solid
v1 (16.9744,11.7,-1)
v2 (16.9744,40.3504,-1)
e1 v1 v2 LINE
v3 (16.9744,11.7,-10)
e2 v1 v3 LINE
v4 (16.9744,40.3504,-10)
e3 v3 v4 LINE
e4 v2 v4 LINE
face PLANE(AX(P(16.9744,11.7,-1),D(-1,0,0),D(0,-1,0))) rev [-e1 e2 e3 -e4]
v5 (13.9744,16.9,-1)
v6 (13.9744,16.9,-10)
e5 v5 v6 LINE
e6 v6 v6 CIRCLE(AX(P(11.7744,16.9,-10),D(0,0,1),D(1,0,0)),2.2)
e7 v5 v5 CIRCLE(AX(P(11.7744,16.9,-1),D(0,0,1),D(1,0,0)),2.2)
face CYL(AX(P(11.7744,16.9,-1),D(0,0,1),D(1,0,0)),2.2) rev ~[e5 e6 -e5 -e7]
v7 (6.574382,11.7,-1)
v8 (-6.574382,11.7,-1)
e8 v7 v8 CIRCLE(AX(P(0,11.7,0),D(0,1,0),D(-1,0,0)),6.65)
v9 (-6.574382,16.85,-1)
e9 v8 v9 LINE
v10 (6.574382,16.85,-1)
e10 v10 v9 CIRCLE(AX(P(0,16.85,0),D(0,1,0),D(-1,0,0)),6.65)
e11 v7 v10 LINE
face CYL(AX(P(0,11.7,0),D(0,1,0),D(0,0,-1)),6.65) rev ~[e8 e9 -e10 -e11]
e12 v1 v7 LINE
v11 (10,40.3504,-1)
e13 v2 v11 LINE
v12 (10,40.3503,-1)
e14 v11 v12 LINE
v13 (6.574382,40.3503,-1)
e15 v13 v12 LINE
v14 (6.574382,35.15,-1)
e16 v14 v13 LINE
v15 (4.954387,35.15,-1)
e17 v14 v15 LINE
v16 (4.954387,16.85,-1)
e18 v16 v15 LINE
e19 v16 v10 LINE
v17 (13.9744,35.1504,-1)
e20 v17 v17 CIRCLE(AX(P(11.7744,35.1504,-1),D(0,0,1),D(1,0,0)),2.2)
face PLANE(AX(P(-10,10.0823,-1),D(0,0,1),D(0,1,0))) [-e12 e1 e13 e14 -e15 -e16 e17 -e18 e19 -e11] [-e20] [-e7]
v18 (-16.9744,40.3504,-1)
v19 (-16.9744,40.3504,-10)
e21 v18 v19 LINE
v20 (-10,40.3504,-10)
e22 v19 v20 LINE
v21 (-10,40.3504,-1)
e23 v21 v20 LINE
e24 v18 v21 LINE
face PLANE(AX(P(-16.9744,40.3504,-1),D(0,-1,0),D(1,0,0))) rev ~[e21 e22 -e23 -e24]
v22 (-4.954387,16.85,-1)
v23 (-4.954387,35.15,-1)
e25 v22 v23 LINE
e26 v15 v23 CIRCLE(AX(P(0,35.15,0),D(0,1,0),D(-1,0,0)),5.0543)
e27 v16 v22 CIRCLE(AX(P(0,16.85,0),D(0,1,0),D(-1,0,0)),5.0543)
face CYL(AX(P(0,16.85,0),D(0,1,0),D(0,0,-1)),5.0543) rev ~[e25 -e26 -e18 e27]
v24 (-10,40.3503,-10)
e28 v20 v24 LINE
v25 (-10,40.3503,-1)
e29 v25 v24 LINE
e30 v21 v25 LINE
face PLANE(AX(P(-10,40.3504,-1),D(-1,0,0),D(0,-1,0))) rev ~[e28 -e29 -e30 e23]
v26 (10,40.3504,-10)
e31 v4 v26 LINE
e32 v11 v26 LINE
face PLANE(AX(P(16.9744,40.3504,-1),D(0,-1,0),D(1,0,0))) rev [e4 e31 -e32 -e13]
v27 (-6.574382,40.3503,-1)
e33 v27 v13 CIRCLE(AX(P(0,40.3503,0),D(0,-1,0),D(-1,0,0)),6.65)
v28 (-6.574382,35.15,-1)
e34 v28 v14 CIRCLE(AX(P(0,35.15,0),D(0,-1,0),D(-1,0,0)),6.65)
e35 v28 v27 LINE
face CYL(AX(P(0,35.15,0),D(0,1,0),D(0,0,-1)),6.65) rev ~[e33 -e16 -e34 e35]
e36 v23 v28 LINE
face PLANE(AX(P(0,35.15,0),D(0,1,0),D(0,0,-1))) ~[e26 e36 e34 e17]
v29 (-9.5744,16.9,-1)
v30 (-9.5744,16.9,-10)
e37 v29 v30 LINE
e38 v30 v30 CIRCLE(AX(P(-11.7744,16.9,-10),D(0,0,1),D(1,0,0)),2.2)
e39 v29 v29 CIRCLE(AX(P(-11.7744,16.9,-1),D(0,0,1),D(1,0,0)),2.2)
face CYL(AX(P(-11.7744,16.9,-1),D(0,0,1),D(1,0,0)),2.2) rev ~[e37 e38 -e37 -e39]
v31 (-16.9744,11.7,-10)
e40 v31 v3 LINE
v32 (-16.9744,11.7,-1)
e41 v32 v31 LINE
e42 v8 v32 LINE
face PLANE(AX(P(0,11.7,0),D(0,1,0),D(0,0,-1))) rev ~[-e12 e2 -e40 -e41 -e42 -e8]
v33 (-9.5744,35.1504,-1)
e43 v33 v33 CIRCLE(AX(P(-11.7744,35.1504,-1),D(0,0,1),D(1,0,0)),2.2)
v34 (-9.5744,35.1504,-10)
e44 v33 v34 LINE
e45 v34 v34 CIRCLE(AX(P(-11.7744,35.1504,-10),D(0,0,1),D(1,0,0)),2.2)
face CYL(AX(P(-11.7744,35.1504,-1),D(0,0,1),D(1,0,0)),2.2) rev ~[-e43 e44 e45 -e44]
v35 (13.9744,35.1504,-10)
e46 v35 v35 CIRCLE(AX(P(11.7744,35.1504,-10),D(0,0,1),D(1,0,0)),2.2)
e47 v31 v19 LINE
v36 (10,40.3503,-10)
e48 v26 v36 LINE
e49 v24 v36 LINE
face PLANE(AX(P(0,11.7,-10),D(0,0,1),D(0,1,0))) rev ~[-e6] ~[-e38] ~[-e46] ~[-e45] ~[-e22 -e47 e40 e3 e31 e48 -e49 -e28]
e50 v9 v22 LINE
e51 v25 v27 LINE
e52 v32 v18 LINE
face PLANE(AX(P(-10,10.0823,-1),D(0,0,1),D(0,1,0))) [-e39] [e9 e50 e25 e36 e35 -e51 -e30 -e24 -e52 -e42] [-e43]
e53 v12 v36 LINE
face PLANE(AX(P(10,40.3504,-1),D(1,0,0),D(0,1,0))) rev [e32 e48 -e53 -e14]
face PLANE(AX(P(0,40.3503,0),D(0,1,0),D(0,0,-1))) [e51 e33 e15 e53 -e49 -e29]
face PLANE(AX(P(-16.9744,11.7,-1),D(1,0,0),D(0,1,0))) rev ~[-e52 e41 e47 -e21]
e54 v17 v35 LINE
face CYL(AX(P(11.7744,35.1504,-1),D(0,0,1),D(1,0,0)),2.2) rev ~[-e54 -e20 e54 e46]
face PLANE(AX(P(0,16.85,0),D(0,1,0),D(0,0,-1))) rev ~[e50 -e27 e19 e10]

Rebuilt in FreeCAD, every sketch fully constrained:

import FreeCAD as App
import Part
import Sketcher

V = App.Vector

doc = App.newDocument("Part")
body = doc.addObject("PartDesign::Body", "Body")

# Sketch on YZ plane
sketch1 = body.newObject("Sketcher::SketchObject", "Sketch")
sketch1.AttachmentSupport = (doc.getObject("YZ_Plane"), [""])
sketch1.MapMode = "FlatFace"
sketch1.addGeometry(Part.LineSegment(V(16.85, -6.65, 0), V(11.7, -6.65, 0)), False)
sketch1.addGeometry(Part.LineSegment(V(11.7, -6.65, 0), V(11.7, -10, 0)), False)
sketch1.addGeometry(Part.LineSegment(V(11.7, -10, 0), V(40.3503, -10, 0)), False)
sketch1.addGeometry(Part.LineSegment(V(40.3503, -10, 0), V(40.3503, -6.65, 0)), False)
sketch1.addGeometry(Part.LineSegment(V(40.3503, -6.65, 0), V(35.15, -6.65, 0)), False)
sketch1.addGeometry(Part.LineSegment(V(35.15, -6.65, 0), V(35.15, -5.0543, 0)), False)
sketch1.addGeometry(Part.LineSegment(V(35.15, -5.0543, 0), V(16.85, -5.0543, 0)), False)
sketch1.addGeometry(Part.LineSegment(V(16.85, -5.0543, 0), V(16.85, -6.65, 0)), False)
sketch1.addConstraint(Sketcher.Constraint("Coincident", 0, 2, 1, 1))
sketch1.addConstraint(Sketcher.Constraint("Coincident", 1, 2, 2, 1))
sketch1.addConstraint(Sketcher.Constraint("Coincident", 2, 2, 3, 1))
sketch1.addConstraint(Sketcher.Constraint("Coincident", 3, 2, 4, 1))
sketch1.addConstraint(Sketcher.Constraint("Coincident", 4, 2, 5, 1))
sketch1.addConstraint(Sketcher.Constraint("Coincident", 5, 2, 6, 1))
sketch1.addConstraint(Sketcher.Constraint("Coincident", 6, 2, 7, 1))
sketch1.addConstraint(Sketcher.Constraint("Coincident", 7, 2, 0, 1))
sketch1.addConstraint(Sketcher.Constraint("Horizontal", 0))
sketch1.addConstraint(Sketcher.Constraint("Vertical", 1))
sketch1.addConstraint(Sketcher.Constraint("Horizontal", 2))
sketch1.addConstraint(Sketcher.Constraint("Vertical", 3))
sketch1.addConstraint(Sketcher.Constraint("Horizontal", 4))
sketch1.addConstraint(Sketcher.Constraint("Vertical", 5))
sketch1.addConstraint(Sketcher.Constraint("Horizontal", 6))
sketch1.addConstraint(Sketcher.Constraint("Vertical", 7))
sketch1.addConstraint(Sketcher.Constraint("Horizontal", 0, 2, 3, 2))
sketch1.addConstraint(Sketcher.Constraint("DistanceX", 6, 2, 6, 1, 18.3))
sketch1.addConstraint(Sketcher.Constraint("DistanceY", 1, 2, -1, 1, 10.0))
sketch1.addConstraint(Sketcher.Constraint("DistanceX", 0, 2, 0, 1, 5.15))
sketch1.addConstraint(Sketcher.Constraint("DistanceY", 1, 2, 1, 1, 3.35))
sketch1.addConstraint(Sketcher.Constraint("DistanceX", -1, 1, 0, 2, 11.7))
sketch1.addConstraint(Sketcher.Constraint("DistanceX", 2, 1, 2, 2, 28.6503))
sketch1.addConstraint(Sketcher.Constraint("DistanceY", 5, 1, 5, 2, 1.5957))
revolution = body.newObject("PartDesign::Revolution", "Revolution")
revolution.Profile = sketch1
revolution.ReferenceAxis = (sketch1, ["H_Axis"])
revolution.Angle = 360

# Sketch on YZ plane
sketch2 = body.newObject("Sketcher::SketchObject", "Sketch001")
sketch2.AttachmentSupport = (doc.getObject("YZ_Plane"), [""])
sketch2.MapMode = "FlatFace"
sketch2.addGeometry(Part.LineSegment(V(11.7, 0, 0), V(11.7, -10, 0)), False)
sketch2.addGeometry(Part.LineSegment(V(11.7, -10, 0), V(40.3503, -10, 0)), False)
sketch2.addGeometry(Part.LineSegment(V(40.3503, -10, 0), V(40.3503, 0, 0)), False)
sketch2.addGeometry(Part.LineSegment(V(40.3503, 0, 0), V(11.7, 0, 0)), False)
sketch2.addConstraint(Sketcher.Constraint("Coincident", 0, 2, 1, 1))
sketch2.addConstraint(Sketcher.Constraint("Coincident", 1, 2, 2, 1))
sketch2.addConstraint(Sketcher.Constraint("Coincident", 2, 2, 3, 1))
sketch2.addConstraint(Sketcher.Constraint("Coincident", 3, 2, 0, 1))
sketch2.addConstraint(Sketcher.Constraint("Vertical", 0))
sketch2.addConstraint(Sketcher.Constraint("Horizontal", 1))
sketch2.addConstraint(Sketcher.Constraint("Vertical", 2))
sketch2.addConstraint(Sketcher.Constraint("Horizontal", 3))
sketch2.addConstraint(Sketcher.Constraint("PointOnObject", 2, 2, -1))
sketch2.addConstraint(Sketcher.Constraint("DistanceY", 0, 2, 0, 1, 10.0))
sketch2.addConstraint(Sketcher.Constraint("DistanceX", -1, 1, 0, 2, 11.7))
sketch2.addConstraint(Sketcher.Constraint("DistanceX", 1, 1, 1, 2, 28.6503))
pad1 = body.newObject("PartDesign::Pad", "Pad")
pad1.Profile = sketch2
pad1.Length = 20
pad1.Midplane = True

# Sketch on YZ plane
sketch3 = body.newObject("Sketcher::SketchObject", "Sketch002")
sketch3.AttachmentSupport = (doc.getObject("YZ_Plane"), [""])
sketch3.MapMode = "FlatFace"
sketch3.addGeometry(Part.LineSegment(V(11.7, 6.65, 0), V(11.7, 0, 0)), False)
sketch3.addGeometry(Part.LineSegment(V(11.7, 0, 0), V(40.3503, 0, 0)), False)
sketch3.addGeometry(Part.LineSegment(V(40.3503, 0, 0), V(40.3503, 6.65, 0)), False)
sketch3.addGeometry(Part.LineSegment(V(40.3503, 6.65, 0), V(35.15, 6.65, 0)), False)
sketch3.addGeometry(Part.LineSegment(V(35.15, 6.65, 0), V(35.15, 5.0543, 0)), False)
sketch3.addGeometry(Part.LineSegment(V(35.15, 5.0543, 0), V(16.85, 5.0543, 0)), False)
sketch3.addGeometry(Part.LineSegment(V(16.85, 5.0543, 0), V(16.85, 6.65, 0)), False)
sketch3.addGeometry(Part.LineSegment(V(16.85, 6.65, 0), V(11.7, 6.65, 0)), False)
sketch3.addConstraint(Sketcher.Constraint("Coincident", 0, 2, 1, 1))
sketch3.addConstraint(Sketcher.Constraint("Coincident", 1, 2, 2, 1))
sketch3.addConstraint(Sketcher.Constraint("Coincident", 2, 2, 3, 1))
sketch3.addConstraint(Sketcher.Constraint("Coincident", 3, 2, 4, 1))
sketch3.addConstraint(Sketcher.Constraint("Coincident", 4, 2, 5, 1))
sketch3.addConstraint(Sketcher.Constraint("Coincident", 5, 2, 6, 1))
sketch3.addConstraint(Sketcher.Constraint("Coincident", 6, 2, 7, 1))
sketch3.addConstraint(Sketcher.Constraint("Coincident", 7, 2, 0, 1))
sketch3.addConstraint(Sketcher.Constraint("Vertical", 0))
sketch3.addConstraint(Sketcher.Constraint("Horizontal", 1))
sketch3.addConstraint(Sketcher.Constraint("Vertical", 2))
sketch3.addConstraint(Sketcher.Constraint("Horizontal", 3))
sketch3.addConstraint(Sketcher.Constraint("Vertical", 4))
sketch3.addConstraint(Sketcher.Constraint("Horizontal", 5))
sketch3.addConstraint(Sketcher.Constraint("Vertical", 6))
sketch3.addConstraint(Sketcher.Constraint("Horizontal", 7))
sketch3.addConstraint(Sketcher.Constraint("PointOnObject", 0, 2, -1))
sketch3.addConstraint(Sketcher.Constraint("Horizontal", 3, 2, 6, 2))
sketch3.addConstraint(Sketcher.Constraint("DistanceX", 5, 2, 5, 1, 18.3))
sketch3.addConstraint(Sketcher.Constraint("DistanceX", 7, 2, 7, 1, 5.15))
sketch3.addConstraint(Sketcher.Constraint("DistanceY", 0, 2, 0, 1, 6.65))
sketch3.addConstraint(Sketcher.Constraint("DistanceX", -1, 1, 0, 2, 11.7))
sketch3.addConstraint(Sketcher.Constraint("DistanceX", 1, 1, 1, 2, 28.6503))
sketch3.addConstraint(Sketcher.Constraint("DistanceY", 4, 2, 4, 1, 1.5957))
groove = body.newObject("PartDesign::Groove", "Groove")
groove.Profile = sketch3
groove.ReferenceAxis = (sketch3, ["H_Axis"])
groove.Angle = 284.342

# Sketch on XZ plane
sketch4 = body.newObject("Sketcher::SketchObject", "Sketch003")
sketch4.AttachmentSupport = (doc.getObject("XZ_Plane"), [""])
sketch4.MapMode = "FlatFace"
sketch4.AttachmentOffset = App.Placement(V(0, 0, -11.7), App.Rotation())
sketch4.addGeometry(Part.LineSegment(V(-12.0207, 10.6039, 0), V(-12.0207, 0, 0)), False)
sketch4.addGeometry(Part.LineSegment(V(-12.0207, 0, 0), V(12.5476, 0, 0)), False)
sketch4.addGeometry(Part.LineSegment(V(12.5476, 0, 0), V(12.5476, 10.6039, 0)), False)
sketch4.addGeometry(Part.LineSegment(V(12.5476, 10.6039, 0), V(-12.0207, 10.6039, 0)), False)
sketch4.addConstraint(Sketcher.Constraint("Coincident", 0, 2, 1, 1))
sketch4.addConstraint(Sketcher.Constraint("Coincident", 1, 2, 2, 1))
sketch4.addConstraint(Sketcher.Constraint("Coincident", 2, 2, 3, 1))
sketch4.addConstraint(Sketcher.Constraint("Coincident", 3, 2, 0, 1))
sketch4.addConstraint(Sketcher.Constraint("Vertical", 0))
sketch4.addConstraint(Sketcher.Constraint("Horizontal", 1))
sketch4.addConstraint(Sketcher.Constraint("Vertical", 2))
sketch4.addConstraint(Sketcher.Constraint("Horizontal", 3))
sketch4.addConstraint(Sketcher.Constraint("PointOnObject", 0, 2, -1))
sketch4.addConstraint(Sketcher.Constraint("DistanceY", 0, 2, 0, 1, 10.604))
sketch4.addConstraint(Sketcher.Constraint("DistanceX", 1, 1, 1, 2, 24.5683))
sketch4.addConstraint(Sketcher.Constraint("DistanceX", 0, 2, -1, 1, 12.0207))
pocket1 = body.newObject("PartDesign::Pocket", "Pocket")
pocket1.Profile = sketch4
pocket1.Length = 426.8623

# Sketch on YZ plane
sketch5 = body.newObject("Sketcher::SketchObject", "Sketch004")
sketch5.AttachmentSupport = (doc.getObject("YZ_Plane"), [""])
sketch5.MapMode = "FlatFace"
sketch5.AttachmentOffset = App.Placement(V(0, 0, -10), App.Rotation())
sketch5.addGeometry(Part.LineSegment(V(10.0823, 0, 0), V(41.9257, 0, 0)), False)
sketch5.addGeometry(Part.LineSegment(V(41.9257, 0, 0), V(41.9257, -1, 0)), False)
sketch5.addGeometry(Part.LineSegment(V(41.9257, -1, 0), V(10.0823, -1, 0)), False)
sketch5.addGeometry(Part.LineSegment(V(10.0823, -1, 0), V(10.0823, 0, 0)), False)
sketch5.addConstraint(Sketcher.Constraint("Coincident", 0, 2, 1, 1))
sketch5.addConstraint(Sketcher.Constraint("Coincident", 1, 2, 2, 1))
sketch5.addConstraint(Sketcher.Constraint("Coincident", 2, 2, 3, 1))
sketch5.addConstraint(Sketcher.Constraint("Coincident", 3, 2, 0, 1))
sketch5.addConstraint(Sketcher.Constraint("Horizontal", 0))
sketch5.addConstraint(Sketcher.Constraint("Vertical", 1))
sketch5.addConstraint(Sketcher.Constraint("Horizontal", 2))
sketch5.addConstraint(Sketcher.Constraint("Vertical", 3))
sketch5.addConstraint(Sketcher.Constraint("PointOnObject", 0, 2, -1))
sketch5.addConstraint(Sketcher.Constraint("DistanceY", 1, 2, 1, 1, 1.0))
sketch5.addConstraint(Sketcher.Constraint("DistanceX", 0, 1, 0, 2, 31.8434))
sketch5.addConstraint(Sketcher.Constraint("DistanceX", -1, 1, 0, 2, 41.9257))
pocket2 = body.newObject("PartDesign::Pocket", "Pocket001")
pocket2.Profile = sketch5
pocket2.Length = 53.8114
pocket2.Reversed = True

# Sketch on XY plane
sketch6 = body.newObject("Sketcher::SketchObject", "Sketch005")
sketch6.AttachmentSupport = (doc.getObject("XY_Plane"), [""])
sketch6.MapMode = "FlatFace"
sketch6.AttachmentOffset = App.Placement(V(0, 0, -1), App.Rotation())
sketch6.addGeometry(Part.LineSegment(V(-10, 11.7, 0), V(-10, 40.3504, 0)), False)
sketch6.addGeometry(Part.LineSegment(V(-10, 40.3504, 0), V(-16.9744, 40.3504, 0)), False)
sketch6.addGeometry(Part.LineSegment(V(-16.9744, 40.3504, 0), V(-16.9744, 11.7, 0)), False)
sketch6.addGeometry(Part.LineSegment(V(-16.9744, 11.7, 0), V(-10, 11.7, 0)), False)
sketch6.addConstraint(Sketcher.Constraint("Coincident", 0, 2, 1, 1))
sketch6.addConstraint(Sketcher.Constraint("Coincident", 1, 2, 2, 1))
sketch6.addConstraint(Sketcher.Constraint("Coincident", 2, 2, 3, 1))
sketch6.addConstraint(Sketcher.Constraint("Coincident", 3, 2, 0, 1))
sketch6.addConstraint(Sketcher.Constraint("Vertical", 0))
sketch6.addConstraint(Sketcher.Constraint("Horizontal", 1))
sketch6.addConstraint(Sketcher.Constraint("Vertical", 2))
sketch6.addConstraint(Sketcher.Constraint("Horizontal", 3))
sketch6.addConstraint(Sketcher.Constraint("DistanceX", 0, 2, -1, 1, 10.0))
sketch6.addConstraint(Sketcher.Constraint("DistanceY", -1, 1, 2, 2, 11.7))
sketch6.addConstraint(Sketcher.Constraint("DistanceX", 1, 2, 1, 1, 6.9744))
sketch6.addConstraint(Sketcher.Constraint("DistanceY", 0, 1, 0, 2, 28.6504))
pad2 = body.newObject("PartDesign::Pad", "Pad001")
pad2.Profile = sketch6
pad2.Length = 9
pad2.Reversed = True
doc.recompute()

mirrored = body.newObject("PartDesign::Mirrored", "Mirrored")
mirrored.Originals = [pad2]
mirrored.MirrorPlane = (doc.getObject("YZ_Plane"), [""])
body.Tip = mirrored

# Sketch on XY plane
sketch7 = body.newObject("Sketcher::SketchObject", "Sketch006")
sketch7.AttachmentSupport = (doc.getObject("XY_Plane"), [""])
sketch7.MapMode = "FlatFace"
sketch7.AttachmentOffset = App.Placement(V(0, 0, -1), App.Rotation())
sketch7.addGeometry(Part.Circle(V(-11.7744, 16.9, 0), V(0, 0, 1), 2.2), False)
sketch7.addGeometry(Part.Circle(V(11.7744, 16.9, 0), V(0, 0, 1), 2.2), False)
sketch7.addGeometry(Part.Circle(V(-11.7744, 35.1504, 0), V(0, 0, 1), 2.2), False)
sketch7.addGeometry(Part.Circle(V(11.7744, 35.1504, 0), V(0, 0, 1), 2.2), False)
sketch7.addConstraint(Sketcher.Constraint("Equal", 0, 1))
sketch7.addConstraint(Sketcher.Constraint("Equal", 1, 2))
sketch7.addConstraint(Sketcher.Constraint("Equal", 2, 3))
sketch7.addConstraint(Sketcher.Constraint("Symmetric", 0, 3, 1, 3, -2))
sketch7.addConstraint(Sketcher.Constraint("Symmetric", 2, 3, 3, 3, -2))
sketch7.addConstraint(Sketcher.Constraint("Vertical", 0, 3, 2, 3))
sketch7.addConstraint(Sketcher.Constraint("Diameter", 0, 4.4))
sketch7.addConstraint(Sketcher.Constraint("DistanceY", -1, 1, 0, 3, 16.9))
sketch7.addConstraint(Sketcher.Constraint("DistanceX", 0, 3, -1, 1, 11.7744))
sketch7.addConstraint(Sketcher.Constraint("DistanceY", -1, 1, 2, 3, 35.1504))
pocket3 = body.newObject("PartDesign::Pocket", "Pocket002")
pocket3.Profile = sketch7
pocket3.Length = 291.9173

doc.recompute()
